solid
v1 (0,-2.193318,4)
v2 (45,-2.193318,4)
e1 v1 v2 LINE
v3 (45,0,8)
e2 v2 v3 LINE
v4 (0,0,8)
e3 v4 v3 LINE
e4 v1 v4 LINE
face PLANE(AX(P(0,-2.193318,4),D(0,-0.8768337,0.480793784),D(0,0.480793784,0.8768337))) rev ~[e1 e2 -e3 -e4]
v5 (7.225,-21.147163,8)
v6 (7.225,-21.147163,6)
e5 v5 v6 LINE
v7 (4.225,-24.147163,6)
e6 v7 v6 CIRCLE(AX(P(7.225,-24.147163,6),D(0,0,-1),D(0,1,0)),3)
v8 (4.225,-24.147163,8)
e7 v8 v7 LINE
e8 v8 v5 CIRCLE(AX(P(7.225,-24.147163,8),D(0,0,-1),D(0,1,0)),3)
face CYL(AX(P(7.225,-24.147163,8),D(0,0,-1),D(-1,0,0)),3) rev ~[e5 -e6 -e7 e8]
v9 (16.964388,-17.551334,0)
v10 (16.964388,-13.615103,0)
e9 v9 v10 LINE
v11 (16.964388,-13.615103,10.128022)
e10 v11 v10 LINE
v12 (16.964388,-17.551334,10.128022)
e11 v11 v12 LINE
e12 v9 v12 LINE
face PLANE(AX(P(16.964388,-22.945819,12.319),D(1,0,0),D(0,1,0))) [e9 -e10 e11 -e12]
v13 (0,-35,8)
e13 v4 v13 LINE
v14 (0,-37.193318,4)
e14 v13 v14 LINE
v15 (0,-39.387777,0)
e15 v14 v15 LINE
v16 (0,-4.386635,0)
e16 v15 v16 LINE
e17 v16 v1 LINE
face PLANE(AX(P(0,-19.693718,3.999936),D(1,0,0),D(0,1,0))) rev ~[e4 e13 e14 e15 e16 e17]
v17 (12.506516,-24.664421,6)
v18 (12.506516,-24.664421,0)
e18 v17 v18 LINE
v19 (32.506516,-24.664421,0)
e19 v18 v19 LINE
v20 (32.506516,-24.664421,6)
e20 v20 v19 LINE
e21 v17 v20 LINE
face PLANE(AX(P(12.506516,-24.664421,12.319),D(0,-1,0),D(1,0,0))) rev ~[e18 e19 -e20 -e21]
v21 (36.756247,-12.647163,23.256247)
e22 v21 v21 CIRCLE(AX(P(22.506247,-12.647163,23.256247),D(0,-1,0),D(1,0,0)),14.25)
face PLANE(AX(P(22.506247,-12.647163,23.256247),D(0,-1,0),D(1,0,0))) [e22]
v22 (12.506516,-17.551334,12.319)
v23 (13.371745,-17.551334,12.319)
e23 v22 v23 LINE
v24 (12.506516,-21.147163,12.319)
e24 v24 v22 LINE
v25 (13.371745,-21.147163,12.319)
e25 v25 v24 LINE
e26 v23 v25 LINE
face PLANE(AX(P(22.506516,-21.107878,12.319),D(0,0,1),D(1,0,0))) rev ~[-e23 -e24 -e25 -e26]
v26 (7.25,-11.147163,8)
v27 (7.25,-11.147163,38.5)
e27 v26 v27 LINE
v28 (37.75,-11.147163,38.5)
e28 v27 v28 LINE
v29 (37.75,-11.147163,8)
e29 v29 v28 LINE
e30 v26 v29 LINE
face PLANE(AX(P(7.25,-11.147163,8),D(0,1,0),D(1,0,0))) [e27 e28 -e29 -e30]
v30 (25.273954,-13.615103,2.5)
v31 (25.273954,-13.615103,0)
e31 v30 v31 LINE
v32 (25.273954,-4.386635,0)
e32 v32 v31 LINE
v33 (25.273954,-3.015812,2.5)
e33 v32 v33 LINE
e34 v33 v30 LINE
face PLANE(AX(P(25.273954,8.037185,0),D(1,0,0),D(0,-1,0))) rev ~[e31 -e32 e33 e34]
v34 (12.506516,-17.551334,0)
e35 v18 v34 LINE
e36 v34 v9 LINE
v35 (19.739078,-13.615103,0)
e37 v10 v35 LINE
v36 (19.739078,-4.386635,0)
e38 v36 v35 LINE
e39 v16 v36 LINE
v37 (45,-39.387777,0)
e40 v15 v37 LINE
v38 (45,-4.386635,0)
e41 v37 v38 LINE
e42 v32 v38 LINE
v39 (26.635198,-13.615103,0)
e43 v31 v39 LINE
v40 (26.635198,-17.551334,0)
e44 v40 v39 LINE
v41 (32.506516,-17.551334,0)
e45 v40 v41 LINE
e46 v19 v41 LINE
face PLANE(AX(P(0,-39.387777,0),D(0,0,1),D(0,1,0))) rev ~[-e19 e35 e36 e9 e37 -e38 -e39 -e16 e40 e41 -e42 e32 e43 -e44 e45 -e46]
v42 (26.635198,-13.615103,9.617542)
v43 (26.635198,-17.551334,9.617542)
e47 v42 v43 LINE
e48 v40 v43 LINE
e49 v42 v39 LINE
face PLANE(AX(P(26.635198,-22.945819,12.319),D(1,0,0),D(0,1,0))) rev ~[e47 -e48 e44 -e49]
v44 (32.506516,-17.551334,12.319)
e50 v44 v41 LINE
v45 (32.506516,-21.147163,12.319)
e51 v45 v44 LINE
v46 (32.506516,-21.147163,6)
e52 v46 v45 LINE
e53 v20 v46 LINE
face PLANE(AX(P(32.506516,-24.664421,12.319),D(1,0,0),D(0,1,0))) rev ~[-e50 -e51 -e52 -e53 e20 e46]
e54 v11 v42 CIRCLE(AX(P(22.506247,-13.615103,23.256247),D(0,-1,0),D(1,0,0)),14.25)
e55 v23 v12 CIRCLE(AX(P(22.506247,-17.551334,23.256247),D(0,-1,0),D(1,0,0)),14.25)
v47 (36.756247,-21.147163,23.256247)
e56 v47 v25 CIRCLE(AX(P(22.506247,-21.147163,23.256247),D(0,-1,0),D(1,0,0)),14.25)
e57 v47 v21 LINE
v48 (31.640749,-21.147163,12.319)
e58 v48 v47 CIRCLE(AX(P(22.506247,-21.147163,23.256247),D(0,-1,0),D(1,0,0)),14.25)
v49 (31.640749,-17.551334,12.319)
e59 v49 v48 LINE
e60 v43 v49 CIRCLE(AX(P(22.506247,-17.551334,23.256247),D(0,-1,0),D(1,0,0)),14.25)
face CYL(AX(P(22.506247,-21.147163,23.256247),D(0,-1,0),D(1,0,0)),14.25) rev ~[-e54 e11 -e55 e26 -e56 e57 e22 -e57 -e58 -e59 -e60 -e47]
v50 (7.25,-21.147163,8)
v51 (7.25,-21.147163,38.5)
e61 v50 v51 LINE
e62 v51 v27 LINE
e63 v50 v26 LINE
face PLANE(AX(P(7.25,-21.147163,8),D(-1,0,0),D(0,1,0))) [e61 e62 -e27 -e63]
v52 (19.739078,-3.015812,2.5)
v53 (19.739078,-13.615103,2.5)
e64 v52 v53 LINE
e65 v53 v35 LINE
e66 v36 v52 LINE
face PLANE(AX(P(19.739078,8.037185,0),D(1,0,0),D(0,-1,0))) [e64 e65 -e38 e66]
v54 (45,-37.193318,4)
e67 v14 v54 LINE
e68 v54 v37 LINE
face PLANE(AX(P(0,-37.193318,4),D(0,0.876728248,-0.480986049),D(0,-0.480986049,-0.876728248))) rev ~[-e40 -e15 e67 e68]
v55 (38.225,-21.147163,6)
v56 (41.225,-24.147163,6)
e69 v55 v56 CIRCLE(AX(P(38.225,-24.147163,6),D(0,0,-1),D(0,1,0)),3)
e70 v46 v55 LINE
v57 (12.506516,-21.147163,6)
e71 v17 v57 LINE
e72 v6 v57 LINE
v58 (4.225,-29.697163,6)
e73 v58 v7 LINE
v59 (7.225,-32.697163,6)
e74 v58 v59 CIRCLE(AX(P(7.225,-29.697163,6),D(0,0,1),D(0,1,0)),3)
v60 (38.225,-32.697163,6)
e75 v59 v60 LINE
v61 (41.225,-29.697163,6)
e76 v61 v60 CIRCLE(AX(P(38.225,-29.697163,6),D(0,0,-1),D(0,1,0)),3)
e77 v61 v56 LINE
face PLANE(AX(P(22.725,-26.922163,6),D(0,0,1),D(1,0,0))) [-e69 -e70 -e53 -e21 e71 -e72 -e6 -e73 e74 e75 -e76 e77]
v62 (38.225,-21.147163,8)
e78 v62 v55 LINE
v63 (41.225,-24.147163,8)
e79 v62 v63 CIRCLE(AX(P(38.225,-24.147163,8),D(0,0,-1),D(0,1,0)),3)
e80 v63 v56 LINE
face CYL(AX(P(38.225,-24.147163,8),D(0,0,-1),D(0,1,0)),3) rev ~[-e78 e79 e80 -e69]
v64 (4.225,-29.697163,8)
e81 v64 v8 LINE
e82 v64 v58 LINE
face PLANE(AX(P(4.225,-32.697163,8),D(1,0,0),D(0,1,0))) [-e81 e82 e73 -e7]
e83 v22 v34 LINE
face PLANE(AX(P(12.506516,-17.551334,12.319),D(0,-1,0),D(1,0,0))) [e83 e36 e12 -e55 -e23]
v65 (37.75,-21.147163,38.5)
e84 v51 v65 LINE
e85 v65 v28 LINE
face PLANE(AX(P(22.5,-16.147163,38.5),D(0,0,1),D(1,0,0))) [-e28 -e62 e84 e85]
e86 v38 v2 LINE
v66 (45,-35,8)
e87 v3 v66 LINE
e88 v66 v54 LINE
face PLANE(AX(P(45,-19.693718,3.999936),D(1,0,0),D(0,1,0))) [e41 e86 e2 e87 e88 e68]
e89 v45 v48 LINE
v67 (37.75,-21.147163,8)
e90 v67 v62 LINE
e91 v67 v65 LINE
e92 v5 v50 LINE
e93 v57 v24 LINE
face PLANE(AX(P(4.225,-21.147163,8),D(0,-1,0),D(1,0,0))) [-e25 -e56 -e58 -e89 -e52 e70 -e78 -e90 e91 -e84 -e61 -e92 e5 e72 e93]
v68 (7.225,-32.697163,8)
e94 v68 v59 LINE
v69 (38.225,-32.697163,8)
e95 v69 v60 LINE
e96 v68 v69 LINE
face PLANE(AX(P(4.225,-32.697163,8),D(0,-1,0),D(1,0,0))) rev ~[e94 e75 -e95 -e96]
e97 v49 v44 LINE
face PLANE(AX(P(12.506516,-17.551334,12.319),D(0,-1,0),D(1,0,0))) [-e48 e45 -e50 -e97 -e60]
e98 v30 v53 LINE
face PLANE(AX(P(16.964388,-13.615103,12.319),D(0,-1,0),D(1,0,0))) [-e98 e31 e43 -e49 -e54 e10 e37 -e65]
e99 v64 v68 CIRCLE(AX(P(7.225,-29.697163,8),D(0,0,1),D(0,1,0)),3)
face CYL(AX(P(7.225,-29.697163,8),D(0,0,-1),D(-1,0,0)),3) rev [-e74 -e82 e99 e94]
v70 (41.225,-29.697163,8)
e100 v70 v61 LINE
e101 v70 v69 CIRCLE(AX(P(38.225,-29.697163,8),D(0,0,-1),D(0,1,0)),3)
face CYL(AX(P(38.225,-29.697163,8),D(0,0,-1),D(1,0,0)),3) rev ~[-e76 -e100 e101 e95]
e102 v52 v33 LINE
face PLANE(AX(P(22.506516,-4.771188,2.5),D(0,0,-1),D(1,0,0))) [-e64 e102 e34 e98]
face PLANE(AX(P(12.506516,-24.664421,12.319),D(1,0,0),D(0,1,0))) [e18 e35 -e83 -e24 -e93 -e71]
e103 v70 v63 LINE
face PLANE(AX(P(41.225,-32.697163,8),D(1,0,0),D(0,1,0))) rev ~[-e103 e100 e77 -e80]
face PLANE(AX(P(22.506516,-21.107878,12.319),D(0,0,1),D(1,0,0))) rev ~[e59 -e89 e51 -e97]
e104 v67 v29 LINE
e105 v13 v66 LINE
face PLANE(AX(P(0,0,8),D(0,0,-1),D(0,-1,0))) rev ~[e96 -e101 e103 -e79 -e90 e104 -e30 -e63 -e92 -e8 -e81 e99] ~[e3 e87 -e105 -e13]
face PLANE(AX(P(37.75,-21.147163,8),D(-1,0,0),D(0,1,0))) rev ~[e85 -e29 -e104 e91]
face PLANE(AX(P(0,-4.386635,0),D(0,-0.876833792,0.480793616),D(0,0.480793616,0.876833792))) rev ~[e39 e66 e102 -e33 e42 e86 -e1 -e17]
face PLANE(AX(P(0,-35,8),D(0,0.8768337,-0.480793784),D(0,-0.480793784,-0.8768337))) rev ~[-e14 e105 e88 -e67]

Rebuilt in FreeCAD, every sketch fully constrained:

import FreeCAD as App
import Part
import Sketcher
from FreeCAD import Vector


def edges_at(feature, points):
    """Names of the edges that pass closest to the given points."""
    edges = feature.Shape.Edges
    near = lambda p: min(range(len(edges)), key=lambda i: edges[i].distToShape(Part.Vertex(*p))[0])
    return sorted({f"Edge{near(p) + 1}" for p in points})


def add_polygon(sketch, points):
    """Adds a closed chain of lines whose ends are joined by coincident constraints."""
    first, n = sketch.GeometryCount, len(points)
    for a, b in zip(points, points[1:] + points[:1]):
        sketch.addGeometry(Part.LineSegment(App.Vector(*a, 0), App.Vector(*b, 0)), False)
    for i in range(n):
        sketch.addConstraint(Sketcher.Constraint("Coincident", first + i, 2, first + (i + 1) % n, 1))

doc = App.newDocument("Part")
params = doc.addObject("Spreadsheet::Sheet", "Params")
for row, (alias, value) in enumerate([
    ("sketch1_width", "35 mm"),
    ("pad1_length", "45 mm"),
    ("sketch2_width", "37 mm"),
    ("sketch2_height", "11.55 mm"),
    ("pocket1_length", "2 mm"),
    ("fillet_radius", "3 mm"),
    ("sketch3_height", "10 mm"),
    ("sketch3_width", "30.5 mm"),
    ("pad2_length", "30.5 mm"),
    ("sketch4_diameter", "28.5 mm"),
    ("pocket2_length", "8.5 mm"),
    ("sketch5_width", "20 mm"),
    ("pocket3_length", "25.4 mm"),
    ("pocket4_length", "2.5 mm"),
    ("pocket5_length", "25.4 mm"),
], start=1):
    params.set(f"A{row}", alias)
    params.set(f"B{row}", "=" + value)
    params.setAlias(f"B{row}", alias)

body = doc.addObject("PartDesign::Body", "Body")

sketch1 = body.newObject("Sketcher::SketchObject", "Sketch")
sketch1.AttachmentSupport = (doc.getObject("YZ_Plane"), [""])
sketch1.MapMode = "FlatFace"
add_polygon(sketch1, [(-35, 8), (-37.2, 4), (-39.4, 0), (-4.4, 0), (-2.2, 4), (0, 8)])
sketch1.addConstraint(Sketcher.Constraint("Horizontal", 2))
sketch1.addConstraint(Sketcher.Constraint("Horizontal", 5))
sketch1.addConstraint(Sketcher.Constraint("PointOnObject", 1, 2, -1))
sketch1.addConstraint(Sketcher.Constraint("PointOnObject", 4, 2, -2))
sketch1.addConstraint(Sketcher.Constraint("Parallel", 0, 3))
sketch1.addConstraint(Sketcher.Constraint("Parallel", 3, 4))
sketch1.addConstraint(Sketcher.Constraint("Horizontal", 0, 2, 3, 2))
sketch1.addConstraint(Sketcher.Constraint("Equal", 0, 3))
sketch1.addConstraint(Sketcher.Constraint("DistanceX", 5, 2, 5, 1, 35.0))
sketch1.addConstraint(Sketcher.Constraint("DistanceY", -1, 1, 0, 2, 4.0))
sketch1.addConstraint(Sketcher.Constraint("Distance", 0, 4.561868))
sketch1.addConstraint(Sketcher.Constraint("DistanceX", 2, 1, 2, 2, 35.001142))
sketch1.setExpression("Constraints[14]", "Params.sketch1_width")
pad1 = body.newObject("PartDesign::Pad", "Pad")
pad1.Profile = sketch1
pad1.setExpression("Length", "Params.pad1_length")

sketch2 = body.newObject("Sketcher::SketchObject", "Sketch001")
sketch2.AttachmentSupport = (doc.getObject("XY_Plane"), [""])
sketch2.MapMode = "FlatFace"
sketch2.AttachmentOffset = App.Placement(Vector(0, 0, 8), App.Rotation())
add_polygon(sketch2, [(4, -21), (4, -33), (41, -33), (41, -21)])
sketch2.addConstraint(Sketcher.Constraint("Vertical", 0))
sketch2.addConstraint(Sketcher.Constraint("Horizontal", 1))
sketch2.addConstraint(Sketcher.Constraint("Vertical", 2))
sketch2.addConstraint(Sketcher.Constraint("Horizontal", 3))
sketch2.addConstraint(Sketcher.Constraint("DistanceX", 1, 1, 1, 2, 37.0))
sketch2.addConstraint(Sketcher.Constraint("DistanceY", 0, 2, 0, 1, 11.55))
sketch2.addConstraint(Sketcher.Constraint("DistanceX", -1, 1, 0, 2, 4.225))
sketch2.addConstraint(Sketcher.Constraint("DistanceY", 0, 2, -1, 1, 32.697163))
sketch2.setExpression("Constraints[8]", "Params.sketch2_width")
sketch2.setExpression("Constraints[9]", "Params.sketch2_height")
pocket1 = body.newObject("PartDesign::Pocket", "Pocket")
pocket1.Profile = sketch2
pocket1.setExpression("Length", "Params.pocket1_length")
doc.recompute()

fillet = body.newObject("PartDesign::Fillet", "Fillet")
fillet.Base = (pocket1, edges_at(pocket1, [
    (4.225, -21.147, 7),
    (4.225, -32.697, 7),
    (41.225, -21.147, 7),
    (41.225, -32.697, 7),
]))
fillet.setExpression("Radius", "Params.fillet_radius")

sketch3 = body.newObject("Sketcher::SketchObject", "Sketch002")
sketch3.AttachmentSupport = (doc.getObject("XY_Plane"), [""])
sketch3.MapMode = "FlatFace"
sketch3.AttachmentOffset = App.Placement(Vector(0, 0, 8), App.Rotation())
add_polygon(sketch3, [(7, -11), (7, -21), (38, -21), (38, -11)])
sketch3.addConstraint(Sketcher.Constraint("Vertical", 0))
sketch3.addConstraint(Sketcher.Constraint("Horizontal", 1))
sketch3.addConstraint(Sketcher.Constraint("Vertical", 2))
sketch3.addConstraint(Sketcher.Constraint("Horizontal", 3))
sketch3.addConstraint(Sketcher.Constraint("DistanceY", 0, 2, 0, 1, 10.0))
sketch3.addConstraint(Sketcher.Constraint("DistanceX", 1, 1, 1, 2, 30.5))
sketch3.addConstraint(Sketcher.Constraint("DistanceX", -1, 1, 0, 2, 7.25))
sketch3.addConstraint(Sketcher.Constraint("DistanceY", 0, 2, -1, 1, 21.147163))
sketch3.setExpression("Constraints[8]", "Params.sketch3_height")
sketch3.setExpression("Constraints[9]", "Params.sketch3_width")
pad2 = body.newObject("PartDesign::Pad", "Pad001")
pad2.Profile = sketch3
pad2.setExpression("Length", "Params.pad2_length")

sketch4 = body.newObject("Sketcher::SketchObject", "Sketch003")
sketch4.AttachmentSupport = (doc.getObject("XZ_Plane"), [""])
sketch4.MapMode = "FlatFace"
sketch4.AttachmentOffset = App.Placement(Vector(0, 0, 21.147163), App.Rotation())
sketch4.addGeometry(Part.Circle(Vector(23, 23, 0), Vector(0, 0, 1), 14), False)
sketch4.addConstraint(Sketcher.Constraint("Diameter", 0, 28.5))
sketch4.addConstraint(Sketcher.Constraint("DistanceX", -1, 1, 0, 3, 22.506247))
sketch4.addConstraint(Sketcher.Constraint("DistanceY", -1, 1, 0, 3, 23.256247))
sketch4.setExpression("Constraints[0]", "Params.sketch4_diameter")
pocket2 = body.newObject("PartDesign::Pocket", "Pocket001")
pocket2.Profile = sketch4
pocket2.setExpression("Length", "Params.pocket2_length")

sketch5 = body.newObject("Sketcher::SketchObject", "Sketch004")
sketch5.AttachmentSupport = (doc.getObject("XY_Plane"), [""])
sketch5.MapMode = "FlatFace"
sketch5.AttachmentOffset = App.Placement(Vector(0, 0, 12.319), App.Rotation())
add_polygon(sketch5, [(13, -18), (13, -25), (33, -25), (33, -18)])
sketch5.addConstraint(Sketcher.Constraint("Vertical", 0))
sketch5.addConstraint(Sketcher.Constraint("Horizontal", 1))
sketch5.addConstraint(Sketcher.Constraint("Vertical", 2))
sketch5.addConstraint(Sketcher.Constraint("Horizontal", 3))
sketch5.addConstraint(Sketcher.Constraint("DistanceX", 1, 1, 1, 2, 20.0))
sketch5.addConstraint(Sketcher.Constraint("DistanceY", 0, 2, 0, 1, 7.113087))
sketch5.addConstraint(Sketcher.Constraint("DistanceY", 0, 2, -1, 1, 24.664421))
sketch5.addConstraint(Sketcher.Constraint("DistanceX", -1, 1, 0, 2, 12.506516))
sketch5.setExpression("Constraints[8]", "Params.sketch5_width")
pocket3 = body.newObject("PartDesign::Pocket", "Pocket002")
pocket3.Profile = sketch5
pocket3.setExpression("Length", "Params.pocket3_length")

sketch6 = body.newObject("Sketcher::SketchObject", "Sketch005")
sketch6.AttachmentSupport = (doc.getObject("XY_Plane"), [""])
sketch6.MapMode = "FlatFace"
add_polygon(sketch6, [(20, -18), (20, 8), (25, 8), (25, -18)])
sketch6.addConstraint(Sketcher.Constraint("Vertical", 0))
sketch6.addConstraint(Sketcher.Constraint("Horizontal", 1))
sketch6.addConstraint(Sketcher.Constraint("Vertical", 2))
sketch6.addConstraint(Sketcher.Constraint("Horizontal", 3))
sketch6.addConstraint(Sketcher.Constraint("DistanceX", 1, 1, 1, 2, 5.534876))
sketch6.addConstraint(Sketcher.Constraint("DistanceY", 0, 1, 0, 2, 25.616745))
sketch6.addConstraint(Sketcher.Constraint("DistanceY", 2, 2, -1, 1, 17.57956))
sketch6.addConstraint(Sketcher.Constraint("DistanceX", -1, 1, 0, 2, 19.739078))
pocket4 = body.newObject("PartDesign::Pocket", "Pocket003")
pocket4.Profile = sketch6
pocket4.setExpression("Length", "Params.pocket4_length")
pocket4.Reversed = True

sketch7 = body.newObject("Sketcher::SketchObject", "Sketch006")
sketch7.AttachmentSupport = (doc.getObject("XY_Plane"), [""])
sketch7.MapMode = "FlatFace"
sketch7.AttachmentOffset = App.Placement(Vector(0, 0, 12.319), App.Rotation())
add_polygon(sketch7, [(17, -14), (17, -23), (27, -23), (27, -14)])
sketch7.addConstraint(Sketcher.Constraint("Vertical", 0))
sketch7.addConstraint(Sketcher.Constraint("Horizontal", 1))
sketch7.addConstraint(Sketcher.Constraint("Vertical", 2))
sketch7.addConstraint(Sketcher.Constraint("Horizontal", 3))
sketch7.addConstraint(Sketcher.Constraint("DistanceX", 1, 1, 1, 2, 9.670809))
sketch7.addConstraint(Sketcher.Constraint("DistanceY", 0, 2, 0, 1, 9.330716))
sketch7.addConstraint(Sketcher.Constraint("DistanceX", -1, 1, 0, 2, 16.964388))
sketch7.addConstraint(Sketcher.Constraint("DistanceY", 0, 2, -1, 1, 22.945819))
pocket5 = body.newObject("PartDesign::Pocket", "Pocket004")
pocket5.Profile = sketch7
pocket5.setExpression("Length", "Params.pocket5_length")

doc.recompute()
